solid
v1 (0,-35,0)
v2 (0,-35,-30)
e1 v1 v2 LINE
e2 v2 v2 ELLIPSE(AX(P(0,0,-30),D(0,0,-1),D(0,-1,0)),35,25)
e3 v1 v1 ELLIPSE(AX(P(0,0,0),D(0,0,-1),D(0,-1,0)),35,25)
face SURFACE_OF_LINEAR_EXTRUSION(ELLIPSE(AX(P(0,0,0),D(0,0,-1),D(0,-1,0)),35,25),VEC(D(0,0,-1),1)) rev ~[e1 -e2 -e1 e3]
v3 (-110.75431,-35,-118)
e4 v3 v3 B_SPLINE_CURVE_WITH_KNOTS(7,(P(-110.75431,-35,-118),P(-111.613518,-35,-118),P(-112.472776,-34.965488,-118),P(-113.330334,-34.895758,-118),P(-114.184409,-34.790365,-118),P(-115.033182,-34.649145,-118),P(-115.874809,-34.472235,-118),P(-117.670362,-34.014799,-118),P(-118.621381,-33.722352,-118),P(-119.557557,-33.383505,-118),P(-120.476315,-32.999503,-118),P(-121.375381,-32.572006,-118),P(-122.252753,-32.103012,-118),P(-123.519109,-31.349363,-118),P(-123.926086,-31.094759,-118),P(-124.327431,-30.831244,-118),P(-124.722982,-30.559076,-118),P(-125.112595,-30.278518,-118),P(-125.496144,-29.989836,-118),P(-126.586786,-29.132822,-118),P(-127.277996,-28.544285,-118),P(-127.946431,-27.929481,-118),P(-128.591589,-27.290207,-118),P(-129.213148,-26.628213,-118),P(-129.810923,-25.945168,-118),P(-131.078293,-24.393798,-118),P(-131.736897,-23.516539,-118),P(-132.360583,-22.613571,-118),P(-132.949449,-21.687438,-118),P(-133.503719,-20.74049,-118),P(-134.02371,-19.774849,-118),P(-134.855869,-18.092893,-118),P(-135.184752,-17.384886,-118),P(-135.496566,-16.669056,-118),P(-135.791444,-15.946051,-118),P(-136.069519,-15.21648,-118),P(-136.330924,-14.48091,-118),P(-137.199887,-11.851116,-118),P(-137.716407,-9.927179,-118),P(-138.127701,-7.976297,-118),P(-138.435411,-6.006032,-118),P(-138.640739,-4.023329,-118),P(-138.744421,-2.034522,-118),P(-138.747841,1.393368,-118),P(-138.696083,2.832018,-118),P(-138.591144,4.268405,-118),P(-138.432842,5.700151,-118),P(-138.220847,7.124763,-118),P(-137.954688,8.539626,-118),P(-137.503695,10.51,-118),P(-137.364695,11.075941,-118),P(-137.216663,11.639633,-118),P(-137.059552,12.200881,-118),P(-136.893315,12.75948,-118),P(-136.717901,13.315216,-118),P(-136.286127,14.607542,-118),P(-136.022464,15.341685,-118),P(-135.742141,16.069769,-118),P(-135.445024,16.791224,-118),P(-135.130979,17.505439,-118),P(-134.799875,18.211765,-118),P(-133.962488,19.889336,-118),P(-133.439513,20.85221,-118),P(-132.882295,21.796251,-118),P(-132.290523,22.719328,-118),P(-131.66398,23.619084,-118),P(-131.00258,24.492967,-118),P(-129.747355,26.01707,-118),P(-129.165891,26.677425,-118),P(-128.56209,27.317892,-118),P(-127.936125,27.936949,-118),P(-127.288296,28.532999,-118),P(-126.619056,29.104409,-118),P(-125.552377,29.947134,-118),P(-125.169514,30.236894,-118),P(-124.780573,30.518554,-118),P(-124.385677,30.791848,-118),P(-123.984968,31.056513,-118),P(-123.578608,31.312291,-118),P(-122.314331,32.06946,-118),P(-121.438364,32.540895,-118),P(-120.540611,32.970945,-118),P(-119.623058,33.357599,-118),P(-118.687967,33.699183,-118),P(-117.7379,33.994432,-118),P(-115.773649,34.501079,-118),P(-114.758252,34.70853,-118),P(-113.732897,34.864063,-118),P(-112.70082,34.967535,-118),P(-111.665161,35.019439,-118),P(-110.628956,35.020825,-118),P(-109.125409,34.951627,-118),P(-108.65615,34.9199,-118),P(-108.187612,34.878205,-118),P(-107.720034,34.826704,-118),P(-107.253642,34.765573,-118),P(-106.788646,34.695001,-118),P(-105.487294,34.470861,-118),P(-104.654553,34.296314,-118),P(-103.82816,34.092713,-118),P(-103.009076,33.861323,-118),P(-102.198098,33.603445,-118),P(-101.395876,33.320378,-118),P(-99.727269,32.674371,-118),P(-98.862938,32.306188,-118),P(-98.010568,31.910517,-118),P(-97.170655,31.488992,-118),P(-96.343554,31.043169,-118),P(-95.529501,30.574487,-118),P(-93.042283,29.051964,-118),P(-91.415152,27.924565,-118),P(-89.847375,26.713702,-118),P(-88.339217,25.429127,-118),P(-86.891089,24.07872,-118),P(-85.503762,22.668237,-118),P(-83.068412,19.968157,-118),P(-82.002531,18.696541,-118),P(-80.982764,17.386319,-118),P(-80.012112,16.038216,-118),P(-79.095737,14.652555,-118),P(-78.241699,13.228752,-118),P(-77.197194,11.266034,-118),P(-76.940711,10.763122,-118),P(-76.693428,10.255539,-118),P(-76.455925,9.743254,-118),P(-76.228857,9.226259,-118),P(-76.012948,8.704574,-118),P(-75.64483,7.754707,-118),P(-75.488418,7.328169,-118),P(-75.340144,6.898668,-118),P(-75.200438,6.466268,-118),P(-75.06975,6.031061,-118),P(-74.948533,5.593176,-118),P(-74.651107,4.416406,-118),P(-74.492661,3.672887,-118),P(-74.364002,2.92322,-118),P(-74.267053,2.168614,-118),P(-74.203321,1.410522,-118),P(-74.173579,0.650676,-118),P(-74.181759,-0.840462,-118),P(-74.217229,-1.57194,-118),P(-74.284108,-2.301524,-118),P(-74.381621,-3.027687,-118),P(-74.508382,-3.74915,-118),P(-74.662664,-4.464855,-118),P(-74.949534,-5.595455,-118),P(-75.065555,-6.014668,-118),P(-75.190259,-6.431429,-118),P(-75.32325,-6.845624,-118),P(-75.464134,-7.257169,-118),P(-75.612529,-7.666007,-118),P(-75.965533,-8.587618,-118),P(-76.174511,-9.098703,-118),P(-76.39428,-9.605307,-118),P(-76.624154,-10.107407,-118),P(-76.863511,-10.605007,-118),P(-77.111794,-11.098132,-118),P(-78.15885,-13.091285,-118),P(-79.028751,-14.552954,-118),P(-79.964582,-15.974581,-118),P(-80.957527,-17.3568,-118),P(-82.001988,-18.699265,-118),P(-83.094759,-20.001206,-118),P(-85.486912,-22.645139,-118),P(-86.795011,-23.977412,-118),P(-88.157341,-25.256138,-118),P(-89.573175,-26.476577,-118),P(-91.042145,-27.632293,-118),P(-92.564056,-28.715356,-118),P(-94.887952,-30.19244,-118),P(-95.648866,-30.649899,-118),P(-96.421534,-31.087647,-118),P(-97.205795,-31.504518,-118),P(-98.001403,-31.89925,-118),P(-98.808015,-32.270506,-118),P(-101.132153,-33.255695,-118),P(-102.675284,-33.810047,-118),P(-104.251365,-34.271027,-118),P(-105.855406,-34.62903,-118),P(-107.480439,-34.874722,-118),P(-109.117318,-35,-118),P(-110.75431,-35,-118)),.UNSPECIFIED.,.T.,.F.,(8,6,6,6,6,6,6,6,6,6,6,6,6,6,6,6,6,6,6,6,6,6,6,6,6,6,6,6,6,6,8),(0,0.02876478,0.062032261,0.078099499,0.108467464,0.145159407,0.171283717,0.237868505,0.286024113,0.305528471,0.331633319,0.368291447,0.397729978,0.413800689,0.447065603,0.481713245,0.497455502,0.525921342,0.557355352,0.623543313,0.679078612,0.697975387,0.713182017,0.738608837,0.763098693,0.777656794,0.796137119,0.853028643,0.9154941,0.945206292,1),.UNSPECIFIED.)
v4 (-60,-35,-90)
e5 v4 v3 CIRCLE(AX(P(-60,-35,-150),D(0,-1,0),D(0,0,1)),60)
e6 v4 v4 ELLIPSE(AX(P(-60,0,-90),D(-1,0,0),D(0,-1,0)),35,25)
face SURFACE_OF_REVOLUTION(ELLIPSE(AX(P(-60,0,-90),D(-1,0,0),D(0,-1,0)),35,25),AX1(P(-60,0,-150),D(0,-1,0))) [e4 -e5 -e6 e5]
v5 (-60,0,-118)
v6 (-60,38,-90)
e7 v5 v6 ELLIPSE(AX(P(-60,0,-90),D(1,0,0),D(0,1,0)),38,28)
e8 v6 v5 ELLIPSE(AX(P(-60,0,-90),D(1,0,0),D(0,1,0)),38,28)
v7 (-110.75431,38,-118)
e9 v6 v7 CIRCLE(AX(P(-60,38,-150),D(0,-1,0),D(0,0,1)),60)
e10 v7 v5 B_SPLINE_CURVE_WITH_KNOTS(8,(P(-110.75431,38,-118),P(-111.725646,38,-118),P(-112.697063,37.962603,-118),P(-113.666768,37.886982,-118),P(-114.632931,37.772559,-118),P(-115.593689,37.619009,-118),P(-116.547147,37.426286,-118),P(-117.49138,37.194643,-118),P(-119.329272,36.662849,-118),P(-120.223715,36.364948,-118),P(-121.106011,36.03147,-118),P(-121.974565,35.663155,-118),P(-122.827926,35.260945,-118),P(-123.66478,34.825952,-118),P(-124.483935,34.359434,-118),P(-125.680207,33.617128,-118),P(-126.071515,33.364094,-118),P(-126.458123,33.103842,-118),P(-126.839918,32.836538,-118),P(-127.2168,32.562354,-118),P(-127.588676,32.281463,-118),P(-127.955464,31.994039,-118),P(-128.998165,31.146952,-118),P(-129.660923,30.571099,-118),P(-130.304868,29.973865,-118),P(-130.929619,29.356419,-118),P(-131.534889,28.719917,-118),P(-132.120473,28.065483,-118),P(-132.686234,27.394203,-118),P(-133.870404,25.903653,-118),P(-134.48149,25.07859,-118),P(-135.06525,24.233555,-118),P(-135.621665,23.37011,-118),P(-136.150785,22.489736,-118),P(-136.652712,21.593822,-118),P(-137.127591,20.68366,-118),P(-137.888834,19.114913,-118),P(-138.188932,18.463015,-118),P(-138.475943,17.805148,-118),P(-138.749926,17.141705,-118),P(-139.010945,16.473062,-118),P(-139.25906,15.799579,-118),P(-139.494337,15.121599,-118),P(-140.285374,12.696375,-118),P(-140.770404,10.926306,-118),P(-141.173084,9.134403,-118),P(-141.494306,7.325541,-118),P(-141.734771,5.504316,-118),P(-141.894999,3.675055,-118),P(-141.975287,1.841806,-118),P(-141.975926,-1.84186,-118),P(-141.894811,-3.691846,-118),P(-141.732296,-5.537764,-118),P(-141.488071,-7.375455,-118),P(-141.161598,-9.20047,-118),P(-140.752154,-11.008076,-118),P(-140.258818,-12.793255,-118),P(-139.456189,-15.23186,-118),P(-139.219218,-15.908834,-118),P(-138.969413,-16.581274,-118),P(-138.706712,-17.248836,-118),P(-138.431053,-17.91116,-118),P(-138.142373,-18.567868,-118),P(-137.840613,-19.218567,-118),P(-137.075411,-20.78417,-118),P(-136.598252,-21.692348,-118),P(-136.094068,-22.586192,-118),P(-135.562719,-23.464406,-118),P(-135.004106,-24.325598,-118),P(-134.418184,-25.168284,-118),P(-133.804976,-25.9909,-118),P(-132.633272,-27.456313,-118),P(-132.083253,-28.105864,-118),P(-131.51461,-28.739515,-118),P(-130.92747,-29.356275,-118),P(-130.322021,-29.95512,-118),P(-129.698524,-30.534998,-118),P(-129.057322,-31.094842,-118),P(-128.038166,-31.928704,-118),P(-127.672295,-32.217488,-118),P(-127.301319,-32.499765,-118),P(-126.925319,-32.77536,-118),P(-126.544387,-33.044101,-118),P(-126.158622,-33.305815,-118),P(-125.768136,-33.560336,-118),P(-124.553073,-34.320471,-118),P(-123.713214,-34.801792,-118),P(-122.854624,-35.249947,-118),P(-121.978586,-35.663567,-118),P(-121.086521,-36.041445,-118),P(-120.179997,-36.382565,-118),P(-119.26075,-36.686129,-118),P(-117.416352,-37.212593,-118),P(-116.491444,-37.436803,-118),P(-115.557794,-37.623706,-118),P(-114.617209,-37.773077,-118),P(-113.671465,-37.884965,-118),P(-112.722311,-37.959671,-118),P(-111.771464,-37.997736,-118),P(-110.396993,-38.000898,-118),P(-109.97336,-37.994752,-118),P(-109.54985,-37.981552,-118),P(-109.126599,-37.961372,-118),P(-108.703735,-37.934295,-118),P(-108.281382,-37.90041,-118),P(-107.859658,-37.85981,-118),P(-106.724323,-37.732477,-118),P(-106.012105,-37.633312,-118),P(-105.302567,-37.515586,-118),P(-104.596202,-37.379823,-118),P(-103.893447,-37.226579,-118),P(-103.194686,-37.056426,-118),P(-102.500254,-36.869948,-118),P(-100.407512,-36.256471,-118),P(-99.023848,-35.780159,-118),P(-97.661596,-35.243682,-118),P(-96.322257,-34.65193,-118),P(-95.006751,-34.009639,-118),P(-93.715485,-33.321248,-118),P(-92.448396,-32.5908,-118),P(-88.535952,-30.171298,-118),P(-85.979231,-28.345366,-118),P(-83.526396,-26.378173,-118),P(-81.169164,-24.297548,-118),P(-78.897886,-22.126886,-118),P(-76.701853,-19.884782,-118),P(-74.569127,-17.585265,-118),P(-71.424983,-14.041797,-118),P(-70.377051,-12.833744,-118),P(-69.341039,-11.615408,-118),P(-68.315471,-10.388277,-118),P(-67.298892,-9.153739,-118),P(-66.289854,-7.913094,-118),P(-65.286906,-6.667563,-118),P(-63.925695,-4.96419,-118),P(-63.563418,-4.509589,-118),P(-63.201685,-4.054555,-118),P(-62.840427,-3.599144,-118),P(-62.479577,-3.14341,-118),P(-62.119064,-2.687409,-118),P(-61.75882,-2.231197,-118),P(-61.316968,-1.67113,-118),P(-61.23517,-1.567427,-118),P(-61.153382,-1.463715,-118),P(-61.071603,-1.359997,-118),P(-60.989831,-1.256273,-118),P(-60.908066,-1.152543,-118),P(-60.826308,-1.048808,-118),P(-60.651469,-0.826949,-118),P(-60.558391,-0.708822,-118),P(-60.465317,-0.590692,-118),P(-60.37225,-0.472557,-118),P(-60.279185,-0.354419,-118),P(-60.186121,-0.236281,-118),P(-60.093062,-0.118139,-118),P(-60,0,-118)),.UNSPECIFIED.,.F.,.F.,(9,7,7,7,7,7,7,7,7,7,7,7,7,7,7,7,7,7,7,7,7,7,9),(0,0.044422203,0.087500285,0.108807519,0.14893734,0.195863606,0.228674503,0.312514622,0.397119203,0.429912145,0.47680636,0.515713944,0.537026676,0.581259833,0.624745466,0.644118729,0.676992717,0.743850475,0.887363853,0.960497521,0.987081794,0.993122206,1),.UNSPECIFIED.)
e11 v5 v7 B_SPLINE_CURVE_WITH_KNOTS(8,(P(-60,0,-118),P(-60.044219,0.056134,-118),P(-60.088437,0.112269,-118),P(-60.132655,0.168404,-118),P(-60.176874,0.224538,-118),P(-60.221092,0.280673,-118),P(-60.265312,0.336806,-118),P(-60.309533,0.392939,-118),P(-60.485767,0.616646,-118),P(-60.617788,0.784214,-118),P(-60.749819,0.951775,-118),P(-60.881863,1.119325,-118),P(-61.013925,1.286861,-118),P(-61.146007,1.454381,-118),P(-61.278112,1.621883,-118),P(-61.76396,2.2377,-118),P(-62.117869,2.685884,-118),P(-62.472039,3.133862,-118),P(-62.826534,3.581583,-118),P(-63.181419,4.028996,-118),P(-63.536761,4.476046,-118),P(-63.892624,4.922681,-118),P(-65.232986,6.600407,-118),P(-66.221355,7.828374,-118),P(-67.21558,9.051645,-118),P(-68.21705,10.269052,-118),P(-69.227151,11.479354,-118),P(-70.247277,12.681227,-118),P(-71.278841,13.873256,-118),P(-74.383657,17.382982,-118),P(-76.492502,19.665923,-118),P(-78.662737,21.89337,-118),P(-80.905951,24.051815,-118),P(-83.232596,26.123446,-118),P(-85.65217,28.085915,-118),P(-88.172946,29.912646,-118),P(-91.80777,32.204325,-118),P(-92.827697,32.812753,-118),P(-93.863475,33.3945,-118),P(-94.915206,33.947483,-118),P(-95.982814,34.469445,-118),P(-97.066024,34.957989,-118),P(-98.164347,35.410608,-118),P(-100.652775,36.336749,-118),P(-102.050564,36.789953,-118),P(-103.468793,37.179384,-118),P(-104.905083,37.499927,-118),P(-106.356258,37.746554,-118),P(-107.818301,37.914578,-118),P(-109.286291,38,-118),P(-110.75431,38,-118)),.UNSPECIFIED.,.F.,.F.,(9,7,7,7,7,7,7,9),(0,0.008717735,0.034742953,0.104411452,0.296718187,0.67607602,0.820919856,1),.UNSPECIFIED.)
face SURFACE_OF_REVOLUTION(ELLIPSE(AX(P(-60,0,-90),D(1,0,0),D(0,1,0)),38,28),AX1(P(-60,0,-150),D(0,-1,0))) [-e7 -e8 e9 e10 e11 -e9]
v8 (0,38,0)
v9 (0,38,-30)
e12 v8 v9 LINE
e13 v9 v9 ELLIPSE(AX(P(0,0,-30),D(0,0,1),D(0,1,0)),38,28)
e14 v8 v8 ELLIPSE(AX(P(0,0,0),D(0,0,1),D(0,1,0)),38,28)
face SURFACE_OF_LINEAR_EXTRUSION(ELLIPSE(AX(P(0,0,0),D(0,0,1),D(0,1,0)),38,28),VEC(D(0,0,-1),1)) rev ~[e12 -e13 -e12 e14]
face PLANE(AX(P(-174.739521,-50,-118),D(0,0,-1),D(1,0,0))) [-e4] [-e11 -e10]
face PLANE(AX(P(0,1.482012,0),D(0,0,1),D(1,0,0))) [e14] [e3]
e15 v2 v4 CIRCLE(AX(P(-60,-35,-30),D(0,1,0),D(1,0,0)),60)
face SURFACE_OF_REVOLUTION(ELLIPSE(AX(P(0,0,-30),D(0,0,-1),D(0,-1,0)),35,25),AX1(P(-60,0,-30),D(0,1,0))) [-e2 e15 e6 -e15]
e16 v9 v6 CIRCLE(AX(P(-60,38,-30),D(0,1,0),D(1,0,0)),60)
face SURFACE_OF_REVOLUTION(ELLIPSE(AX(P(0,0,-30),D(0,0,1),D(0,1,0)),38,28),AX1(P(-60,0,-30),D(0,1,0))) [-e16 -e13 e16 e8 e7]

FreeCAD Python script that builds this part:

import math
import FreeCAD as App
import Part
import Sketcher

V = App.Vector


def add_polygon(sketch, points):
    """Adds a closed chain of lines whose ends are joined by coincident constraints."""
    first, n = sketch.GeometryCount, len(points)
    for a, b in zip(points, points[1:] + points[:1]):
        sketch.addGeometry(Part.LineSegment(App.Vector(*a, 0), App.Vector(*b, 0)), False)
    for i in range(n):
        sketch.addConstraint(Sketcher.Constraint("Coincident", first + i, 2, first + (i + 1) % n, 1))

doc = App.newDocument("Part")
body = doc.addObject("PartDesign::Body", "Body")

# Sketch on XY plane
sketch1 = body.newObject("Sketcher::SketchObject", "Sketch")
sketch1.AttachmentSupport = (doc.getObject("XY_Plane"), [""])
sketch1.MapMode = "FlatFace"
sketch1.addGeometry([
    Part.Ellipse(V(0, 38, 0), V(-28, 0, 0), V(0, 0, 0)),
    Part.Ellipse(V(0, -35, 0), V(25, 0, 0), V(0, 0, 0)),
], False)
sketch1.addConstraint([
    Sketcher.Constraint("Block", 0),
    Sketcher.Constraint("Block", 1),
])

# Sketch on XZ plane
sketch2 = body.newObject("Sketcher::SketchObject", "Sketch001")
sketch2.AttachmentSupport = (doc.getObject("XZ_Plane"), [""])
sketch2.MapMode = "FlatFace"
sketch2.addGeometry([
    Part.LineSegment(V(0, 0, 0), V(0, -30, 0)),
    Part.ArcOfCircle(Part.Circle(V(-60, -30, 0), V(0, 0, 1), 60), math.radians(-90), math.radians(0)),
    Part.ArcOfCircle(Part.Circle(V(-60, -150, 0), V(0, 0, 1), 60), math.radians(90), math.radians(180)),
], False)
sketch2.addConstraint([
    Sketcher.Constraint("Tangent", 0, 2, 1, 2),
    Sketcher.Constraint("Tangent", 1, 1, 2, 1),
    Sketcher.Constraint("Vertical", 0),
    Sketcher.Constraint("Coincident", 0, 1, -1, 1),
    Sketcher.Constraint("Equal", 1, 2),
    Sketcher.Constraint("Vertical", 1, 3, 2, 3),
    Sketcher.Constraint("Radius", 1, 60.0),
    Sketcher.Constraint("DistanceY", 0, 2, 0, 1, 30.0),
    Sketcher.Constraint("DistanceY", 2, 2, -1, 1, 150.0),
])
doc.recompute()

additivepipe = body.newObject("PartDesign::AdditivePipe", "AdditivePipe")
additivepipe.Profile = sketch1
additivepipe.Spine = (sketch2, ["Edge1", "Edge2", "Edge3"])

# Sketch on XZ plane
sketch3 = body.newObject("Sketcher::SketchObject", "Sketch002")
sketch3.AttachmentSupport = (doc.getObject("XZ_Plane"), [""])
sketch3.MapMode = "FlatFace"
add_polygon(sketch3, [(-174.739521, -154.181022), (-174.739521, -118), (-60, -118), (-60, -154.181022)])  # lines 0-3
sketch3.addConstraint([
    Sketcher.Constraint("Vertical", 0),
    Sketcher.Constraint("Horizontal", 1),
    Sketcher.Constraint("Vertical", 2),
    Sketcher.Constraint("Horizontal", 3),
    Sketcher.Constraint("DistanceY", 0, 2, -1, 1, 118.0),
    Sketcher.Constraint("DistanceX", 1, 2, -1, 1, 60.0),
    Sketcher.Constraint("DistanceX", 1, 1, 1, 2, 114.739521),
    Sketcher.Constraint("DistanceY", 0, 1, 0, 2, 36.181022),
])
pocket1 = body.newObject("PartDesign::Pocket", "Pocket")
pocket1.Profile = sketch3
pocket1.Type = "ThroughAll"
pocket1.Midplane = True

doc.recompute()
